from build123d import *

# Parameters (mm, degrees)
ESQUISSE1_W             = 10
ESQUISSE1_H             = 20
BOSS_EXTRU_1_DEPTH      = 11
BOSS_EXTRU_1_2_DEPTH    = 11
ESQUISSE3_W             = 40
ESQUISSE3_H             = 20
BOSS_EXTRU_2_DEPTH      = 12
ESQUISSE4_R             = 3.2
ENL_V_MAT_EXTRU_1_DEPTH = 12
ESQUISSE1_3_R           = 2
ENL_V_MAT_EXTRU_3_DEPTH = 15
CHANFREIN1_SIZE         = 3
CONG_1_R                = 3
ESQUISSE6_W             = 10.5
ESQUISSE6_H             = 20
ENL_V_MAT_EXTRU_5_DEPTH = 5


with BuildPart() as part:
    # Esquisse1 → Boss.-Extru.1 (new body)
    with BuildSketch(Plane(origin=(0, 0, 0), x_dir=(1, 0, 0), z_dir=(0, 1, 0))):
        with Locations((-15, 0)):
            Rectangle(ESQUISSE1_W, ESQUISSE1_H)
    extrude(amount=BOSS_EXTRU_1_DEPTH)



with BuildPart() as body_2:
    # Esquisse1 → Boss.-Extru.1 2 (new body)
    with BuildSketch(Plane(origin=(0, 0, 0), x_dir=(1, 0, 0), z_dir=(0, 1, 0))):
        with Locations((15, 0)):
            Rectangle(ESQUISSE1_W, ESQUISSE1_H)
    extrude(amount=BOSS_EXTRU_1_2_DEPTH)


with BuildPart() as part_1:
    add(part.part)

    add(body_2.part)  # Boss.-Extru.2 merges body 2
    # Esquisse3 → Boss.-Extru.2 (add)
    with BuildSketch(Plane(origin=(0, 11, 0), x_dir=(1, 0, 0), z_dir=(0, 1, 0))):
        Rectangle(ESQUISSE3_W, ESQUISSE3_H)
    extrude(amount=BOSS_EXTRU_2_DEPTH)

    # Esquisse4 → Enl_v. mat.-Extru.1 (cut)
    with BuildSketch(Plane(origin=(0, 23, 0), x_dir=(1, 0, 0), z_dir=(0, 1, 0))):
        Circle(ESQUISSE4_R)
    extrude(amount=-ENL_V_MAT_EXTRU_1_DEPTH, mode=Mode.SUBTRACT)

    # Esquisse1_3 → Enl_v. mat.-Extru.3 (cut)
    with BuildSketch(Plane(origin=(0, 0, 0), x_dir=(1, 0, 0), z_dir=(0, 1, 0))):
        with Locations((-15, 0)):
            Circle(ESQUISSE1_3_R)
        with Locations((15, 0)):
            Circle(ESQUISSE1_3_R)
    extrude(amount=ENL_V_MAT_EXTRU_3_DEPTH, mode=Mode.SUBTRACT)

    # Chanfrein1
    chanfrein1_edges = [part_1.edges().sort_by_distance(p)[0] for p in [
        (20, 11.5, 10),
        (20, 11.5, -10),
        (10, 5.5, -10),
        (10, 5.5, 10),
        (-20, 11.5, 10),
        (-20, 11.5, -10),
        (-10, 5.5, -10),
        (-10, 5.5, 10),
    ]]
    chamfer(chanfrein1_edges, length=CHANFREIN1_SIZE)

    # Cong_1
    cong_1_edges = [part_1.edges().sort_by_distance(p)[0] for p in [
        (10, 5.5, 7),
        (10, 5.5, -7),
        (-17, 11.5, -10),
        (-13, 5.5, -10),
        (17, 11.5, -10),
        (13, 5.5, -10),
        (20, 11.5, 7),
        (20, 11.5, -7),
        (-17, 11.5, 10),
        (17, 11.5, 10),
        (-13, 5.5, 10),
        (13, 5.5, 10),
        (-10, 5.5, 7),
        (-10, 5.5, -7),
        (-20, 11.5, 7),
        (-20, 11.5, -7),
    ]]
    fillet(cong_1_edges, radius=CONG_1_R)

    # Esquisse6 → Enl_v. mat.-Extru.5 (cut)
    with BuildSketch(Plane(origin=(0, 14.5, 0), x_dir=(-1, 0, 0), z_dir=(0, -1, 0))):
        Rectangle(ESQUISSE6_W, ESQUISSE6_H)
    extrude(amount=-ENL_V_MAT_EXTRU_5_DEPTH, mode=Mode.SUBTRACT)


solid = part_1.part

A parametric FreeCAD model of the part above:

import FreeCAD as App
import Part
import Sketcher
from FreeCAD import Vector
Q = App.Units.Quantity


def edges_at(feature, points):
    """Names of the edges that pass closest to the given points."""
    edges = feature.Shape.Edges
    near = lambda p: min(range(len(edges)), key=lambda i: edges[i].distToShape(Part.Vertex(*p))[0])
    return sorted({f"Edge{near(p) + 1}" for p in points})


def add_polygon(sketch, points):
    """Adds a closed chain of lines whose ends are joined by coincident constraints."""
    first, n = sketch.GeometryCount, len(points)
    for a, b in zip(points, points[1:] + points[:1]):
        sketch.addGeometry(Part.LineSegment(App.Vector(*a, 0), App.Vector(*b, 0)), False)
    for i in range(n):
        sketch.addConstraint(Sketcher.Constraint("Coincident", first + i, 2, first + (i + 1) % n, 1))

doc = App.newDocument("Part")
body = doc.addObject("PartDesign::Body", "Body")

# Sketch on XZ plane
sketch1 = body.newObject("Sketcher::SketchObject", "Sketch")
sketch1.AttachmentSupport = (doc.getObject("XZ_Plane"), [""])
sketch1.MapMode = "FlatFace"
add_polygon(sketch1, [(-20, -10), (-20, 10), (-10, 10), (-10, -10)])  # lines 0-3
sketch1.addConstraint(Sketcher.Constraint("Vertical", 0))
sketch1.addConstraint(Sketcher.Constraint("Horizontal", 1))
sketch1.addConstraint(Sketcher.Constraint("Vertical", 2))
sketch1.addConstraint(Sketcher.Constraint("Horizontal", 3))
sketch1.addConstraint(Sketcher.Constraint("DistanceX", 1, 1, 1, 2, Q("10 mm")))
sketch1.addConstraint(Sketcher.Constraint("DistanceY", 0, 1, 0, 2, Q("20 mm")))
sketch1.addConstraint(Sketcher.Constraint("DistanceX", 0, 2, -1, 1, Q("20 mm")))
sketch1.addConstraint(Sketcher.Constraint("DistanceY", -1, 1, 0, 2, Q("10 mm")))
pad1 = body.newObject("PartDesign::Pad", "Pad")
pad1.Profile = sketch1
pad1.Length = 11
pad1.Reversed = True
body2 = doc.addObject("PartDesign::Body", "Body001")

# Sketch on XZ plane
sketch2 = body2.newObject("Sketcher::SketchObject", "Sketch001")
sketch2.AttachmentSupport = (doc.getObject("XZ_Plane001"), [""])
sketch2.MapMode = "FlatFace"
add_polygon(sketch2, [(10, -10), (10, 10), (20, 10), (20, -10)])  # lines 0-3
sketch2.addConstraint(Sketcher.Constraint("Vertical", 0))
sketch2.addConstraint(Sketcher.Constraint("Horizontal", 1))
sketch2.addConstraint(Sketcher.Constraint("Vertical", 2))
sketch2.addConstraint(Sketcher.Constraint("Horizontal", 3))
sketch2.addConstraint(Sketcher.Constraint("DistanceX", 1, 1, 1, 2, Q("10 mm")))
sketch2.addConstraint(Sketcher.Constraint("DistanceY", 0, 1, 0, 2, Q("20 mm")))
sketch2.addConstraint(Sketcher.Constraint("DistanceX", -1, 1, 0, 2, Q("10 mm")))
sketch2.addConstraint(Sketcher.Constraint("DistanceY", -1, 1, 0, 2, Q("10 mm")))
pad2 = body2.newObject("PartDesign::Pad", "Pad001")
pad2.Profile = sketch2
pad2.Length = 11
pad2.Reversed = True
body.AllowCompound = True
doc.recompute()

boolean = body.newObject("PartDesign::Boolean", "Boolean")
boolean.Type = "Fuse"
boolean.addObjects([body2])

# Sketch on XZ plane
sketch3 = body.newObject("Sketcher::SketchObject", "Sketch002")
sketch3.AttachmentSupport = (doc.getObject("XZ_Plane"), [""])
sketch3.MapMode = "FlatFace"
sketch3.AttachmentOffset = App.Placement(Vector(0, 0, -11), App.Rotation())
add_polygon(sketch3, [(-20, -10), (-20, 10), (20, 10), (20, -10)])  # lines 0-3
sketch3.addConstraint(Sketcher.Constraint("Vertical", 0))
sketch3.addConstraint(Sketcher.Constraint("Horizontal", 1))
sketch3.addConstraint(Sketcher.Constraint("Vertical", 2))
sketch3.addConstraint(Sketcher.Constraint("Horizontal", 3))
sketch3.addConstraint(Sketcher.Constraint("Symmetric", 0, 2, 2, 2, -1, 1))
sketch3.addConstraint(Sketcher.Constraint("DistanceX", 1, 1, 1, 2, Q("40 mm")))
sketch3.addConstraint(Sketcher.Constraint("DistanceY", 0, 1, 0, 2, Q("20 mm")))
pad3 = body.newObject("PartDesign::Pad", "Pad002")
pad3.Profile = sketch3
pad3.Length = 12
pad3.Reversed = True

# Sketch on XZ plane
sketch4 = body.newObject("Sketcher::SketchObject", "Sketch003")
sketch4.AttachmentSupport = (doc.getObject("XZ_Plane"), [""])
sketch4.MapMode = "FlatFace"
sketch4.AttachmentOffset = App.Placement(Vector(0, 0, -23), App.Rotation())
sketch4.addGeometry(Part.Circle(Vector(0, 0, 0), Vector(0, 0, 1), 3.2), False)
sketch4.addConstraint(Sketcher.Constraint("Coincident", 0, 3, -1, 1))
sketch4.addConstraint(Sketcher.Constraint("Diameter", 0, Q("6.4 mm")))
pocket1 = body.newObject("PartDesign::Pocket", "Pocket")
pocket1.Profile = sketch4
pocket1.Length = 12
pocket1.Reversed = True

# Sketch on XZ plane
sketch5 = body.newObject("Sketcher::SketchObject", "Sketch004")
sketch5.AttachmentSupport = (doc.getObject("XZ_Plane"), [""])
sketch5.MapMode = "FlatFace"
sketch5.addGeometry(Part.Circle(Vector(-15, 0, 0), Vector(0, 0, 1), 2), False)
sketch5.addGeometry(Part.Circle(Vector(15, 0, 0), Vector(0, 0, 1), 2), False)
sketch5.addConstraint(Sketcher.Constraint("Equal", 0, 1))
sketch5.addConstraint(Sketcher.Constraint("Symmetric", 0, 3, 1, 3, -1, 1))
sketch5.addConstraint(Sketcher.Constraint("PointOnObject", 0, 3, -1))
sketch5.addConstraint(Sketcher.Constraint("Diameter", 0, Q("4 mm")))
sketch5.addConstraint(Sketcher.Constraint("DistanceX", 0, 3, -1, 1, Q("15 mm")))
pocket2 = body.newObject("PartDesign::Pocket", "Pocket001")
pocket2.Profile = sketch5
pocket2.Length = 15
doc.recompute()

chamfer = body.newObject("PartDesign::Chamfer", "Chamfer")
chamfer.Base = (pocket2, edges_at(pocket2, [
    (20, 11.5, 10),
    (20, 11.5, -10),
    (10, 5.5, -10),
    (10, 5.5, 10),
    (-20, 11.5, 10),
    (-20, 11.5, -10),
    (-10, 5.5, -10),
    (-10, 5.5, 10),
]))
chamfer.Size = 3
doc.recompute()

fillet = body.newObject("PartDesign::Fillet", "Fillet")
fillet.Base = (chamfer, edges_at(chamfer, [
    (10, 5.5, 7),
    (10, 5.5, -7),
    (-17, 11.5, -10),
    (-13, 5.5, -10),
    (17, 11.5, -10),
    (13, 5.5, -10),
    (20, 11.5, 7),
    (20, 11.5, -7),
    (-17, 11.5, 10),
    (17, 11.5, 10),
    (-13, 5.5, 10),
    (13, 5.5, 10),
    (-10, 5.5, 7),
    (-10, 5.5, -7),
    (-20, 11.5, 7),
    (-20, 11.5, -7),
]))
fillet.Radius = 3

# Sketch on XZ plane
sketch6 = body.newObject("Sketcher::SketchObject", "Sketch005")
sketch6.AttachmentSupport = (doc.getObject("XZ_Plane"), [""])
sketch6.MapMode = "FlatFace"
sketch6.AttachmentOffset = App.Placement(Vector(0, 0, -14.5), App.Rotation())
add_polygon(sketch6, [(5, -10), (5, 10), (-5, 10), (-5, -10)])  # lines 0-3
sketch6.addConstraint(Sketcher.Constraint("Vertical", 0))
sketch6.addConstraint(Sketcher.Constraint("Horizontal", 1))
sketch6.addConstraint(Sketcher.Constraint("Vertical", 2))
sketch6.addConstraint(Sketcher.Constraint("Horizontal", 3))
sketch6.addConstraint(Sketcher.Constraint("Symmetric", 0, 2, 2, 2, -1, 1))
sketch6.addConstraint(Sketcher.Constraint("DistanceY", 0, 1, 0, 2, Q("20 mm")))
sketch6.addConstraint(Sketcher.Constraint("DistanceX", 1, 2, 1, 1, Q("10.5 mm")))
pocket3 = body.newObject("PartDesign::Pocket", "Pocket002")
pocket3.Profile = sketch6
pocket3.Length = 5

doc.recompute()
